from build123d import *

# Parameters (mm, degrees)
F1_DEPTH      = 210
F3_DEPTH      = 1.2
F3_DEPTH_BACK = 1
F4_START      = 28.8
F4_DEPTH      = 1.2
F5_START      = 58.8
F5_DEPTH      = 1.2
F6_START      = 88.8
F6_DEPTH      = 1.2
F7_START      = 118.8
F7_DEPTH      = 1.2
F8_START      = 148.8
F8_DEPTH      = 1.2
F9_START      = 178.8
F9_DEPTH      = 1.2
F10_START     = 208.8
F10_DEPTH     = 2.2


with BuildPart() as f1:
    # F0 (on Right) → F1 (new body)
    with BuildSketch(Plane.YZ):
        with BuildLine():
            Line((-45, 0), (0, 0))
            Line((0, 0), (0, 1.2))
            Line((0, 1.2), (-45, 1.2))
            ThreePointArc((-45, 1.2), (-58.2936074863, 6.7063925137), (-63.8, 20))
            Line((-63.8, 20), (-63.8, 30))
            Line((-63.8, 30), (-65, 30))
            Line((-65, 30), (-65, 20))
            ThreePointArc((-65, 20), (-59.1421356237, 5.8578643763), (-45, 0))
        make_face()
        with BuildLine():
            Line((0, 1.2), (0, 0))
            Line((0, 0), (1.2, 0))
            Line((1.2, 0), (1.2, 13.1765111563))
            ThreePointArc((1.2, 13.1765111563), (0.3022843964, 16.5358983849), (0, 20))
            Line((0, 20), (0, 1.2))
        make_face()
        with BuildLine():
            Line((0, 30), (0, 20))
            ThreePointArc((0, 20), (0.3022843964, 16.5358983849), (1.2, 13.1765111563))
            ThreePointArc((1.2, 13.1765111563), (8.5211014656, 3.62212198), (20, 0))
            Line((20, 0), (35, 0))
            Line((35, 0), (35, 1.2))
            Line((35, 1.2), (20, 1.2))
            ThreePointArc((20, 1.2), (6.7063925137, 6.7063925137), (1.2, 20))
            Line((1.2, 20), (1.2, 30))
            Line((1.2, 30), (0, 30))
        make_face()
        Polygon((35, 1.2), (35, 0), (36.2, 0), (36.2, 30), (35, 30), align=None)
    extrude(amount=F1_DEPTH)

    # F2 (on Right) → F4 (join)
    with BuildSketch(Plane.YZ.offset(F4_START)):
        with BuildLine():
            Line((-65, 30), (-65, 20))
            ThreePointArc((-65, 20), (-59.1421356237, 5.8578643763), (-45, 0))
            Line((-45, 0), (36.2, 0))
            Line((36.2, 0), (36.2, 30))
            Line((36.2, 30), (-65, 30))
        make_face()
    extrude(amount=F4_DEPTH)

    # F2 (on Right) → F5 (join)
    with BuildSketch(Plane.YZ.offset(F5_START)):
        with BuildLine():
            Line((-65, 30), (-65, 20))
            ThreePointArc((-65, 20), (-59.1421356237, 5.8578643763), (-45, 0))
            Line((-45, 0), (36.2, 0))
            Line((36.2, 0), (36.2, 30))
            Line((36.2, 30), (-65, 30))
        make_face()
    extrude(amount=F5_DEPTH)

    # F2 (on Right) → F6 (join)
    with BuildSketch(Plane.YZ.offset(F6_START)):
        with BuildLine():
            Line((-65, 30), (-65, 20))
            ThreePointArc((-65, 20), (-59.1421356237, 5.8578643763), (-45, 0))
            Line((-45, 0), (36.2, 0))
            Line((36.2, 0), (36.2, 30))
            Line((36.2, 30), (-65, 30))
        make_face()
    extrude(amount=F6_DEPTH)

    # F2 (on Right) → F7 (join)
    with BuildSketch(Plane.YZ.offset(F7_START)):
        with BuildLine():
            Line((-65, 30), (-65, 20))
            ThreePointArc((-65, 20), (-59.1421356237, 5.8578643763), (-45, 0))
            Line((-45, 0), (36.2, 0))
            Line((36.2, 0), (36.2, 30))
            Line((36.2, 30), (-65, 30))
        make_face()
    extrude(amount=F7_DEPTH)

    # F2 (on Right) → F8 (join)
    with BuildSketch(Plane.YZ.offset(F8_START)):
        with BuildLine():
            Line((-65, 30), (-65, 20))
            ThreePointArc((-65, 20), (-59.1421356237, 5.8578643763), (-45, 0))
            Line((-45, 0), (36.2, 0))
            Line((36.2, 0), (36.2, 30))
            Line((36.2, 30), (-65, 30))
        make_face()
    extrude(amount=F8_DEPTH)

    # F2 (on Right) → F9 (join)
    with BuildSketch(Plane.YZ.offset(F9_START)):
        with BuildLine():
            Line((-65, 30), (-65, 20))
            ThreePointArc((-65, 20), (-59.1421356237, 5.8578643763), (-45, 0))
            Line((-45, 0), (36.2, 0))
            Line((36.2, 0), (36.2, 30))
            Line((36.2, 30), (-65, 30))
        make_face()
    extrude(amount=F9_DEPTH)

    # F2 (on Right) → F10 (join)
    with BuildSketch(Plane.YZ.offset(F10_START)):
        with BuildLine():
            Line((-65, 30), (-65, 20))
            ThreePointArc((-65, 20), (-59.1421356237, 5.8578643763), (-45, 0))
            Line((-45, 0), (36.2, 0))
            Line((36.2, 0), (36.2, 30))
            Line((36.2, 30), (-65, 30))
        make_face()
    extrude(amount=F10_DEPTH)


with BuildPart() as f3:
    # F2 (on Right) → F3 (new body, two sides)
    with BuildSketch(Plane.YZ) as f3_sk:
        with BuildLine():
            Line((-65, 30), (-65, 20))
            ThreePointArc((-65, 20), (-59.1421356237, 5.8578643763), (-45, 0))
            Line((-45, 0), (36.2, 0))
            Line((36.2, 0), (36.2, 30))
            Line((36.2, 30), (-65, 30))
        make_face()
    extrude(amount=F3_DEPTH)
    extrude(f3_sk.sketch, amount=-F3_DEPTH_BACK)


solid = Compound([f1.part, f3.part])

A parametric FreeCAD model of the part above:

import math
import FreeCAD as App
import Part
import Sketcher

doc = App.newDocument("Part")
body = doc.addObject("PartDesign::Body", "Body")

sketch1 = body.newObject("Sketcher::SketchObject", "Sketch")
sketch1.AttachmentSupport = (doc.getObject("YZ_Plane"), [""])
sketch1.MapMode = "FlatFace"
sketch1.addGeometry(Part.LineSegment(App.Vector(-45, 0, 0), App.Vector(1.2, 0, 0)), False)
sketch1.addGeometry(Part.LineSegment(App.Vector(1.2, 0, 0), App.Vector(1.2, 13.176511, 0)), False)
sketch1.addGeometry(Part.ArcOfCircle(Part.Circle(App.Vector(20, 20, 0), App.Vector(0, 0, 1), 20), math.radians(-160.051556), math.radians(-90)), False)
sketch1.addGeometry(Part.LineSegment(App.Vector(20, 0, 0), App.Vector(36.2, 0, 0)), False)
sketch1.addGeometry(Part.LineSegment(App.Vector(36.2, 0, 0), App.Vector(36.2, 30, 0)), False)
sketch1.addGeometry(Part.LineSegment(App.Vector(36.2, 30, 0), App.Vector(35, 30, 0)), False)
sketch1.addGeometry(Part.LineSegment(App.Vector(35, 30, 0), App.Vector(35, 1.2, 0)), False)
sketch1.addGeometry(Part.LineSegment(App.Vector(35, 1.2, 0), App.Vector(20, 1.2, 0)), False)
sketch1.addGeometry(Part.ArcOfCircle(Part.Circle(App.Vector(20, 20, 0), App.Vector(0, 0, 1), 18.8), math.radians(180), math.radians(270)), False)
sketch1.addGeometry(Part.LineSegment(App.Vector(1.2, 20, 0), App.Vector(1.2, 30, 0)), False)
sketch1.addGeometry(Part.LineSegment(App.Vector(1.2, 30, 0), App.Vector(0, 30, 0)), False)
sketch1.addGeometry(Part.LineSegment(App.Vector(0, 30, 0), App.Vector(0, 1.2, 0)), False)
sketch1.addGeometry(Part.LineSegment(App.Vector(0, 1.2, 0), App.Vector(-45, 1.2, 0)), False)
sketch1.addGeometry(Part.ArcOfCircle(Part.Circle(App.Vector(-45, 20, 0), App.Vector(0, 0, 1), 18.8), math.radians(180), math.radians(270)), False)
sketch1.addGeometry(Part.LineSegment(App.Vector(-63.8, 20, 0), App.Vector(-63.8, 30, 0)), False)
sketch1.addGeometry(Part.LineSegment(App.Vector(-63.8, 30, 0), App.Vector(-65, 30, 0)), False)
sketch1.addGeometry(Part.LineSegment(App.Vector(-65, 30, 0), App.Vector(-65, 20, 0)), False)
sketch1.addGeometry(Part.ArcOfCircle(Part.Circle(App.Vector(-45, 20, 0), App.Vector(0, 0, 1), 20), math.radians(180), math.radians(270)), False)
sketch1.addConstraint(Sketcher.Constraint("Coincident", 0, 2, 1, 1))
sketch1.addConstraint(Sketcher.Constraint("Coincident", 1, 2, 2, 1))
sketch1.addConstraint(Sketcher.Constraint("Tangent", 2, 2, 3, 1))
sketch1.addConstraint(Sketcher.Constraint("Coincident", 3, 2, 4, 1))
sketch1.addConstraint(Sketcher.Constraint("Coincident", 4, 2, 5, 1))
sketch1.addConstraint(Sketcher.Constraint("Coincident", 5, 2, 6, 1))
sketch1.addConstraint(Sketcher.Constraint("Coincident", 6, 2, 7, 1))
sketch1.addConstraint(Sketcher.Constraint("Tangent", 7, 2, 8, 2))
sketch1.addConstraint(Sketcher.Constraint("Tangent", 8, 1, 9, 1))
sketch1.addConstraint(Sketcher.Constraint("Coincident", 9, 2, 10, 1))
sketch1.addConstraint(Sketcher.Constraint("Coincident", 10, 2, 11, 1))
sketch1.addConstraint(Sketcher.Constraint("Coincident", 11, 2, 12, 1))
sketch1.addConstraint(Sketcher.Constraint("Tangent", 12, 2, 13, 2))
sketch1.addConstraint(Sketcher.Constraint("Tangent", 13, 1, 14, 1))
sketch1.addConstraint(Sketcher.Constraint("Coincident", 14, 2, 15, 1))
sketch1.addConstraint(Sketcher.Constraint("Coincident", 15, 2, 16, 1))
sketch1.addConstraint(Sketcher.Constraint("Tangent", 16, 2, 17, 1))
sketch1.addConstraint(Sketcher.Constraint("Tangent", 17, 2, 0, 1))
sketch1.addConstraint(Sketcher.Constraint("Horizontal", 0))
sketch1.addConstraint(Sketcher.Constraint("Vertical", 1))
sketch1.addConstraint(Sketcher.Constraint("Horizontal", 3))
sketch1.addConstraint(Sketcher.Constraint("Vertical", 4))
sketch1.addConstraint(Sketcher.Constraint("Horizontal", 5))
sketch1.addConstraint(Sketcher.Constraint("Vertical", 6))
sketch1.addConstraint(Sketcher.Constraint("Horizontal", 7))
sketch1.addConstraint(Sketcher.Constraint("Vertical", 9))
sketch1.addConstraint(Sketcher.Constraint("Horizontal", 10))
sketch1.addConstraint(Sketcher.Constraint("Vertical", 11))
sketch1.addConstraint(Sketcher.Constraint("Horizontal", 12))
sketch1.addConstraint(Sketcher.Constraint("Vertical", 14))
sketch1.addConstraint(Sketcher.Constraint("Horizontal", 15))
sketch1.addConstraint(Sketcher.Constraint("Vertical", 16))
sketch1.addConstraint(Sketcher.Constraint("Coincident", 8, 3, 2, 3))
sketch1.addConstraint(Sketcher.Constraint("Coincident", 17, 3, 13, 3))
sketch1.addConstraint(Sketcher.Constraint("Equal", 8, 13))
sketch1.addConstraint(Sketcher.Constraint("Equal", 2, 17))
sketch1.addConstraint(Sketcher.Constraint("PointOnObject", 0, 2, -1))
sketch1.addConstraint(Sketcher.Constraint("PointOnObject", 2, 2, -1))
sketch1.addConstraint(Sketcher.Constraint("PointOnObject", 10, 2, -2))
sketch1.addConstraint(Sketcher.Constraint("Horizontal", 5, 2, 9, 2))
sketch1.addConstraint(Sketcher.Constraint("Horizontal", 10, 2, 14, 2))
sketch1.addConstraint(Sketcher.Constraint("Vertical", 1, 2, 8, 1))
sketch1.addConstraint(Sketcher.Constraint("Equal", 5, 10))
sketch1.addConstraint(Sketcher.Constraint("Equal", 10, 15))
sketch1.addConstraint(Sketcher.Constraint("Radius", 2, 20.0))
sketch1.addConstraint(Sketcher.Constraint("Radius", 8, 18.8))
sketch1.addConstraint(Sketcher.Constraint("DistanceX", 7, 2, 7, 1, 15.0))
sketch1.addConstraint(Sketcher.Constraint("DistanceX", 12, 2, 12, 1, 45.0))
sketch1.addConstraint(Sketcher.Constraint("DistanceY", 4, 1, 4, 2, 30.0))
pad1 = body.newObject("PartDesign::Pad", "Pad")
pad1.Profile = sketch1
pad1.Length = 210

sketch2 = body.newObject("Sketcher::SketchObject", "Sketch001")
sketch2.AttachmentSupport = (doc.getObject("YZ_Plane"), [""])
sketch2.MapMode = "FlatFace"
sketch2.AttachmentOffset = App.Placement(App.Vector(0, 0, 28.8), App.Rotation())
sketch2.addGeometry(Part.LineSegment(App.Vector(-65, 30, 0), App.Vector(-65, 20, 0)), False)
sketch2.addGeometry(Part.ArcOfCircle(Part.Circle(App.Vector(-45, 20, 0), App.Vector(0, 0, 1), 20), math.radians(180), math.radians(270)), False)
sketch2.addGeometry(Part.LineSegment(App.Vector(-45, 0, 0), App.Vector(36.2, 0, 0)), False)
sketch2.addGeometry(Part.LineSegment(App.Vector(36.2, 0, 0), App.Vector(36.2, 30, 0)), False)
sketch2.addGeometry(Part.LineSegment(App.Vector(36.2, 30, 0), App.Vector(-65, 30, 0)), False)
sketch2.addConstraint(Sketcher.Constraint("Tangent", 0, 2, 1, 1))
sketch2.addConstraint(Sketcher.Constraint("Tangent", 1, 2, 2, 1))
sketch2.addConstraint(Sketcher.Constraint("Coincident", 2, 2, 3, 1))
sketch2.addConstraint(Sketcher.Constraint("Coincident", 3, 2, 4, 1))
sketch2.addConstraint(Sketcher.Constraint("Coincident", 4, 2, 0, 1))
sketch2.addConstraint(Sketcher.Constraint("Vertical", 0))
sketch2.addConstraint(Sketcher.Constraint("Horizontal", 2))
sketch2.addConstraint(Sketcher.Constraint("Vertical", 3))
sketch2.addConstraint(Sketcher.Constraint("Horizontal", 4))
sketch2.addConstraint(Sketcher.Constraint("PointOnObject", 1, 2, -1))
sketch2.addConstraint(Sketcher.Constraint("Radius", 1, 20.0))
sketch2.addConstraint(Sketcher.Constraint("DistanceY", 0, 2, 0, 1, 10.0))
sketch2.addConstraint(Sketcher.Constraint("DistanceX", 2, 1, 2, 2, 81.2))
sketch2.addConstraint(Sketcher.Constraint("DistanceX", 1, 3, -1, 1, 45.0))
pad2 = body.newObject("PartDesign::Pad", "Pad001")
pad2.Profile = sketch2
pad2.Length = 1.2

sketch3 = body.newObject("Sketcher::SketchObject", "Sketch002")
sketch3.AttachmentSupport = (doc.getObject("YZ_Plane"), [""])
sketch3.MapMode = "FlatFace"
sketch3.AttachmentOffset = App.Placement(App.Vector(0, 0, 58.8), App.Rotation())
sketch3.addGeometry(Part.LineSegment(App.Vector(-65, 30, 0), App.Vector(-65, 20, 0)), False)
sketch3.addGeometry(Part.ArcOfCircle(Part.Circle(App.Vector(-45, 20, 0), App.Vector(0, 0, 1), 20), math.radians(180), math.radians(270)), False)
sketch3.addGeometry(Part.LineSegment(App.Vector(-45, 0, 0), App.Vector(36.2, 0, 0)), False)
sketch3.addGeometry(Part.LineSegment(App.Vector(36.2, 0, 0), App.Vector(36.2, 30, 0)), False)
sketch3.addGeometry(Part.LineSegment(App.Vector(36.2, 30, 0), App.Vector(-65, 30, 0)), False)
sketch3.addConstraint(Sketcher.Constraint("Tangent", 0, 2, 1, 1))
sketch3.addConstraint(Sketcher.Constraint("Tangent", 1, 2, 2, 1))
sketch3.addConstraint(Sketcher.Constraint("Coincident", 2, 2, 3, 1))
sketch3.addConstraint(Sketcher.Constraint("Coincident", 3, 2, 4, 1))
sketch3.addConstraint(Sketcher.Constraint("Coincident", 4, 2, 0, 1))
sketch3.addConstraint(Sketcher.Constraint("Vertical", 0))
sketch3.addConstraint(Sketcher.Constraint("Horizontal", 2))
sketch3.addConstraint(Sketcher.Constraint("Vertical", 3))
sketch3.addConstraint(Sketcher.Constraint("Horizontal", 4))
sketch3.addConstraint(Sketcher.Constraint("PointOnObject", 1, 2, -1))
sketch3.addConstraint(Sketcher.Constraint("Radius", 1, 20.0))
sketch3.addConstraint(Sketcher.Constraint("DistanceY", 0, 2, 0, 1, 10.0))
sketch3.addConstraint(Sketcher.Constraint("DistanceX", 2, 1, 2, 2, 81.2))
sketch3.addConstraint(Sketcher.Constraint("DistanceX", 1, 3, -1, 1, 45.0))
pad3 = body.newObject("PartDesign::Pad", "Pad002")
pad3.Profile = sketch3
pad3.Length = 1.2

sketch4 = body.newObject("Sketcher::SketchObject", "Sketch003")
sketch4.AttachmentSupport = (doc.getObject("YZ_Plane"), [""])
sketch4.MapMode = "FlatFace"
sketch4.AttachmentOffset = App.Placement(App.Vector(0, 0, 88.8), App.Rotation())
sketch4.addGeometry(Part.LineSegment(App.Vector(-65, 30, 0), App.Vector(-65, 20, 0)), False)
sketch4.addGeometry(Part.ArcOfCircle(Part.Circle(App.Vector(-45, 20, 0), App.Vector(0, 0, 1), 20), math.radians(180), math.radians(270)), False)
sketch4.addGeometry(Part.LineSegment(App.Vector(-45, 0, 0), App.Vector(36.2, 0, 0)), False)
sketch4.addGeometry(Part.LineSegment(App.Vector(36.2, 0, 0), App.Vector(36.2, 30, 0)), False)
sketch4.addGeometry(Part.LineSegment(App.Vector(36.2, 30, 0), App.Vector(-65, 30, 0)), False)
sketch4.addConstraint(Sketcher.Constraint("Tangent", 0, 2, 1, 1))
sketch4.addConstraint(Sketcher.Constraint("Tangent", 1, 2, 2, 1))
sketch4.addConstraint(Sketcher.Constraint("Coincident", 2, 2, 3, 1))
sketch4.addConstraint(Sketcher.Constraint("Coincident", 3, 2, 4, 1))
sketch4.addConstraint(Sketcher.Constraint("Coincident", 4, 2, 0, 1))
sketch4.addConstraint(Sketcher.Constraint("Vertical", 0))
sketch4.addConstraint(Sketcher.Constraint("Horizontal", 2))
sketch4.addConstraint(Sketcher.Constraint("Vertical", 3))
sketch4.addConstraint(Sketcher.Constraint("Horizontal", 4))
sketch4.addConstraint(Sketcher.Constraint("PointOnObject", 1, 2, -1))
sketch4.addConstraint(Sketcher.Constraint("Radius", 1, 20.0))
sketch4.addConstraint(Sketcher.Constraint("DistanceY", 0, 2, 0, 1, 10.0))
sketch4.addConstraint(Sketcher.Constraint("DistanceX", 2, 1, 2, 2, 81.2))
sketch4.addConstraint(Sketcher.Constraint("DistanceX", 1, 3, -1, 1, 45.0))
pad4 = body.newObject("PartDesign::Pad", "Pad003")
pad4.Profile = sketch4
pad4.Length = 1.2

sketch5 = body.newObject("Sketcher::SketchObject", "Sketch004")
sketch5.AttachmentSupport = (doc.getObject("YZ_Plane"), [""])
sketch5.MapMode = "FlatFace"
sketch5.AttachmentOffset = App.Placement(App.Vector(0, 0, 118.8), App.Rotation())
sketch5.addGeometry(Part.LineSegment(App.Vector(-65, 30, 0), App.Vector(-65, 20, 0)), False)
sketch5.addGeometry(Part.ArcOfCircle(Part.Circle(App.Vector(-45, 20, 0), App.Vector(0, 0, 1), 20), math.radians(180), math.radians(270)), False)
sketch5.addGeometry(Part.LineSegment(App.Vector(-45, 0, 0), App.Vector(36.2, 0, 0)), False)
sketch5.addGeometry(Part.LineSegment(App.Vector(36.2, 0, 0), App.Vector(36.2, 30, 0)), False)
sketch5.addGeometry(Part.LineSegment(App.Vector(36.2, 30, 0), App.Vector(-65, 30, 0)), False)
sketch5.addConstraint(Sketcher.Constraint("Tangent", 0, 2, 1, 1))
sketch5.addConstraint(Sketcher.Constraint("Tangent", 1, 2, 2, 1))
sketch5.addConstraint(Sketcher.Constraint("Coincident", 2, 2, 3, 1))
sketch5.addConstraint(Sketcher.Constraint("Coincident", 3, 2, 4, 1))
sketch5.addConstraint(Sketcher.Constraint("Coincident", 4, 2, 0, 1))
sketch5.addConstraint(Sketcher.Constraint("Vertical", 0))
sketch5.addConstraint(Sketcher.Constraint("Horizontal", 2))
sketch5.addConstraint(Sketcher.Constraint("Vertical", 3))
sketch5.addConstraint(Sketcher.Constraint("Horizontal", 4))
sketch5.addConstraint(Sketcher.Constraint("PointOnObject", 1, 2, -1))
sketch5.addConstraint(Sketcher.Constraint("Radius", 1, 20.0))
sketch5.addConstraint(Sketcher.Constraint("DistanceY", 0, 2, 0, 1, 10.0))
sketch5.addConstraint(Sketcher.Constraint("DistanceX", 2, 1, 2, 2, 81.2))
sketch5.addConstraint(Sketcher.Constraint("DistanceX", 1, 3, -1, 1, 45.0))
pad5 = body.newObject("PartDesign::Pad", "Pad004")
pad5.Profile = sketch5
pad5.Length = 1.2

sketch6 = body.newObject("Sketcher::SketchObject", "Sketch005")
sketch6.AttachmentSupport = (doc.getObject("YZ_Plane"), [""])
sketch6.MapMode = "FlatFace"
sketch6.AttachmentOffset = App.Placement(App.Vector(0, 0, 148.8), App.Rotation())
sketch6.addGeometry(Part.LineSegment(App.Vector(-65, 30, 0), App.Vector(-65, 20, 0)), False)
sketch6.addGeometry(Part.ArcOfCircle(Part.Circle(App.Vector(-45, 20, 0), App.Vector(0, 0, 1), 20), math.radians(180), math.radians(270)), False)
sketch6.addGeometry(Part.LineSegment(App.Vector(-45, 0, 0), App.Vector(36.2, 0, 0)), False)
sketch6.addGeometry(Part.LineSegment(App.Vector(36.2, 0, 0), App.Vector(36.2, 30, 0)), False)
sketch6.addGeometry(Part.LineSegment(App.Vector(36.2, 30, 0), App.Vector(-65, 30, 0)), False)
sketch6.addConstraint(Sketcher.Constraint("Tangent", 0, 2, 1, 1))
sketch6.addConstraint(Sketcher.Constraint("Tangent", 1, 2, 2, 1))
sketch6.addConstraint(Sketcher.Constraint("Coincident", 2, 2, 3, 1))
sketch6.addConstraint(Sketcher.Constraint("Coincident", 3, 2, 4, 1))
sketch6.addConstraint(Sketcher.Constraint("Coincident", 4, 2, 0, 1))
sketch6.addConstraint(Sketcher.Constraint("Vertical", 0))
sketch6.addConstraint(Sketcher.Constraint("Horizontal", 2))
sketch6.addConstraint(Sketcher.Constraint("Vertical", 3))
sketch6.addConstraint(Sketcher.Constraint("Horizontal", 4))
sketch6.addConstraint(Sketcher.Constraint("PointOnObject", 1, 2, -1))
sketch6.addConstraint(Sketcher.Constraint("Radius", 1, 20.0))
sketch6.addConstraint(Sketcher.Constraint("DistanceY", 0, 2, 0, 1, 10.0))
sketch6.addConstraint(Sketcher.Constraint("DistanceX", 2, 1, 2, 2, 81.2))
sketch6.addConstraint(Sketcher.Constraint("DistanceX", 1, 3, -1, 1, 45.0))
pad6 = body.newObject("PartDesign::Pad", "Pad005")
pad6.Profile = sketch6
pad6.Length = 1.2

sketch7 = body.newObject("Sketcher::SketchObject", "Sketch006")
sketch7.AttachmentSupport = (doc.getObject("YZ_Plane"), [""])
sketch7.MapMode = "FlatFace"
sketch7.AttachmentOffset = App.Placement(App.Vector(0, 0, 178.8), App.Rotation())
sketch7.addGeometry(Part.LineSegment(App.Vector(-65, 30, 0), App.Vector(-65, 20, 0)), False)
sketch7.addGeometry(Part.ArcOfCircle(Part.Circle(App.Vector(-45, 20, 0), App.Vector(0, 0, 1), 20), math.radians(180), math.radians(270)), False)
sketch7.addGeometry(Part.LineSegment(App.Vector(-45, 0, 0), App.Vector(36.2, 0, 0)), False)
sketch7.addGeometry(Part.LineSegment(App.Vector(36.2, 0, 0), App.Vector(36.2, 30, 0)), False)
sketch7.addGeometry(Part.LineSegment(App.Vector(36.2, 30, 0), App.Vector(-65, 30, 0)), False)
sketch7.addConstraint(Sketcher.Constraint("Tangent", 0, 2, 1, 1))
sketch7.addConstraint(Sketcher.Constraint("Tangent", 1, 2, 2, 1))
sketch7.addConstraint(Sketcher.Constraint("Coincident", 2, 2, 3, 1))
sketch7.addConstraint(Sketcher.Constraint("Coincident", 3, 2, 4, 1))
sketch7.addConstraint(Sketcher.Constraint("Coincident", 4, 2, 0, 1))
sketch7.addConstraint(Sketcher.Constraint("Vertical", 0))
sketch7.addConstraint(Sketcher.Constraint("Horizontal", 2))
sketch7.addConstraint(Sketcher.Constraint("Vertical", 3))
sketch7.addConstraint(Sketcher.Constraint("Horizontal", 4))
sketch7.addConstraint(Sketcher.Constraint("PointOnObject", 1, 2, -1))
sketch7.addConstraint(Sketcher.Constraint("Radius", 1, 20.0))
sketch7.addConstraint(Sketcher.Constraint("DistanceY", 0, 2, 0, 1, 10.0))
sketch7.addConstraint(Sketcher.Constraint("DistanceX", 2, 1, 2, 2, 81.2))
sketch7.addConstraint(Sketcher.Constraint("DistanceX", 1, 3, -1, 1, 45.0))
pad7 = body.newObject("PartDesign::Pad", "Pad006")
pad7.Profile = sketch7
pad7.Length = 1.2

sketch8 = body.newObject("Sketcher::SketchObject", "Sketch007")
sketch8.AttachmentSupport = (doc.getObject("YZ_Plane"), [""])
sketch8.MapMode = "FlatFace"
sketch8.AttachmentOffset = App.Placement(App.Vector(0, 0, 208.8), App.Rotation())
sketch8.addGeometry(Part.LineSegment(App.Vector(-65, 30, 0), App.Vector(-65, 20, 0)), False)
sketch8.addGeometry(Part.ArcOfCircle(Part.Circle(App.Vector(-45, 20, 0), App.Vector(0, 0, 1), 20), math.radians(180), math.radians(270)), False)
sketch8.addGeometry(Part.LineSegment(App.Vector(-45, 0, 0), App.Vector(36.2, 0, 0)), False)
sketch8.addGeometry(Part.LineSegment(App.Vector(36.2, 0, 0), App.Vector(36.2, 30, 0)), False)
sketch8.addGeometry(Part.LineSegment(App.Vector(36.2, 30, 0), App.Vector(-65, 30, 0)), False)
sketch8.addConstraint(Sketcher.Constraint("Tangent", 0, 2, 1, 1))
sketch8.addConstraint(Sketcher.Constraint("Tangent", 1, 2, 2, 1))
sketch8.addConstraint(Sketcher.Constraint("Coincident", 2, 2, 3, 1))
sketch8.addConstraint(Sketcher.Constraint("Coincident", 3, 2, 4, 1))
sketch8.addConstraint(Sketcher.Constraint("Coincident", 4, 2, 0, 1))
sketch8.addConstraint(Sketcher.Constraint("Vertical", 0))
sketch8.addConstraint(Sketcher.Constraint("Horizontal", 2))
sketch8.addConstraint(Sketcher.Constraint("Vertical", 3))
sketch8.addConstraint(Sketcher.Constraint("Horizontal", 4))
sketch8.addConstraint(Sketcher.Constraint("PointOnObject", 1, 2, -1))
sketch8.addConstraint(Sketcher.Constraint("Radius", 1, 20.0))
sketch8.addConstraint(Sketcher.Constraint("DistanceY", 0, 2, 0, 1, 10.0))
sketch8.addConstraint(Sketcher.Constraint("DistanceX", 2, 1, 2, 2, 81.2))
sketch8.addConstraint(Sketcher.Constraint("DistanceX", 1, 3, -1, 1, 45.0))
pad8 = body.newObject("PartDesign::Pad", "Pad007")
pad8.Profile = sketch8
pad8.Length = 2.2
body2 = doc.addObject("PartDesign::Body", "Body001")

sketch9 = body2.newObject("Sketcher::SketchObject", "Sketch008")
sketch9.AttachmentSupport = (doc.getObject("YZ_Plane001"), [""])
sketch9.MapMode = "FlatFace"
sketch9.addGeometry(Part.LineSegment(App.Vector(-65, 30, 0), App.Vector(-65, 20, 0)), False)
sketch9.addGeometry(Part.ArcOfCircle(Part.Circle(App.Vector(-45, 20, 0), App.Vector(0, 0, 1), 20), math.radians(180), math.radians(270)), False)
sketch9.addGeometry(Part.LineSegment(App.Vector(-45, 0, 0), App.Vector(36.2, 0, 0)), False)
sketch9.addGeometry(Part.LineSegment(App.Vector(36.2, 0, 0), App.Vector(36.2, 30, 0)), False)
sketch9.addGeometry(Part.LineSegment(App.Vector(36.2, 30, 0), App.Vector(-65, 30, 0)), False)
sketch9.addConstraint(Sketcher.Constraint("Tangent", 0, 2, 1, 1))
sketch9.addConstraint(Sketcher.Constraint("Tangent", 1, 2, 2, 1))
sketch9.addConstraint(Sketcher.Constraint("Coincident", 2, 2, 3, 1))
sketch9.addConstraint(Sketcher.Constraint("Coincident", 3, 2, 4, 1))
sketch9.addConstraint(Sketcher.Constraint("Coincident", 4, 2, 0, 1))
sketch9.addConstraint(Sketcher.Constraint("Vertical", 0))
sketch9.addConstraint(Sketcher.Constraint("Horizontal", 2))
sketch9.addConstraint(Sketcher.Constraint("Vertical", 3))
sketch9.addConstraint(Sketcher.Constraint("Horizontal", 4))
sketch9.addConstraint(Sketcher.Constraint("PointOnObject", 1, 2, -1))
sketch9.addConstraint(Sketcher.Constraint("Radius", 1, 20.0))
sketch9.addConstraint(Sketcher.Constraint("DistanceY", 0, 2, 0, 1, 10.0))
sketch9.addConstraint(Sketcher.Constraint("DistanceX", 2, 1, 2, 2, 81.2))
sketch9.addConstraint(Sketcher.Constraint("DistanceX", 1, 3, -1, 1, 45.0))
pad9 = body2.newObject("PartDesign::Pad", "Pad008")
pad9.Profile = sketch9
pad9.Type = "TwoLengths"
pad9.Length = 1.2
pad9.Length2 = 1

doc.recompute()
